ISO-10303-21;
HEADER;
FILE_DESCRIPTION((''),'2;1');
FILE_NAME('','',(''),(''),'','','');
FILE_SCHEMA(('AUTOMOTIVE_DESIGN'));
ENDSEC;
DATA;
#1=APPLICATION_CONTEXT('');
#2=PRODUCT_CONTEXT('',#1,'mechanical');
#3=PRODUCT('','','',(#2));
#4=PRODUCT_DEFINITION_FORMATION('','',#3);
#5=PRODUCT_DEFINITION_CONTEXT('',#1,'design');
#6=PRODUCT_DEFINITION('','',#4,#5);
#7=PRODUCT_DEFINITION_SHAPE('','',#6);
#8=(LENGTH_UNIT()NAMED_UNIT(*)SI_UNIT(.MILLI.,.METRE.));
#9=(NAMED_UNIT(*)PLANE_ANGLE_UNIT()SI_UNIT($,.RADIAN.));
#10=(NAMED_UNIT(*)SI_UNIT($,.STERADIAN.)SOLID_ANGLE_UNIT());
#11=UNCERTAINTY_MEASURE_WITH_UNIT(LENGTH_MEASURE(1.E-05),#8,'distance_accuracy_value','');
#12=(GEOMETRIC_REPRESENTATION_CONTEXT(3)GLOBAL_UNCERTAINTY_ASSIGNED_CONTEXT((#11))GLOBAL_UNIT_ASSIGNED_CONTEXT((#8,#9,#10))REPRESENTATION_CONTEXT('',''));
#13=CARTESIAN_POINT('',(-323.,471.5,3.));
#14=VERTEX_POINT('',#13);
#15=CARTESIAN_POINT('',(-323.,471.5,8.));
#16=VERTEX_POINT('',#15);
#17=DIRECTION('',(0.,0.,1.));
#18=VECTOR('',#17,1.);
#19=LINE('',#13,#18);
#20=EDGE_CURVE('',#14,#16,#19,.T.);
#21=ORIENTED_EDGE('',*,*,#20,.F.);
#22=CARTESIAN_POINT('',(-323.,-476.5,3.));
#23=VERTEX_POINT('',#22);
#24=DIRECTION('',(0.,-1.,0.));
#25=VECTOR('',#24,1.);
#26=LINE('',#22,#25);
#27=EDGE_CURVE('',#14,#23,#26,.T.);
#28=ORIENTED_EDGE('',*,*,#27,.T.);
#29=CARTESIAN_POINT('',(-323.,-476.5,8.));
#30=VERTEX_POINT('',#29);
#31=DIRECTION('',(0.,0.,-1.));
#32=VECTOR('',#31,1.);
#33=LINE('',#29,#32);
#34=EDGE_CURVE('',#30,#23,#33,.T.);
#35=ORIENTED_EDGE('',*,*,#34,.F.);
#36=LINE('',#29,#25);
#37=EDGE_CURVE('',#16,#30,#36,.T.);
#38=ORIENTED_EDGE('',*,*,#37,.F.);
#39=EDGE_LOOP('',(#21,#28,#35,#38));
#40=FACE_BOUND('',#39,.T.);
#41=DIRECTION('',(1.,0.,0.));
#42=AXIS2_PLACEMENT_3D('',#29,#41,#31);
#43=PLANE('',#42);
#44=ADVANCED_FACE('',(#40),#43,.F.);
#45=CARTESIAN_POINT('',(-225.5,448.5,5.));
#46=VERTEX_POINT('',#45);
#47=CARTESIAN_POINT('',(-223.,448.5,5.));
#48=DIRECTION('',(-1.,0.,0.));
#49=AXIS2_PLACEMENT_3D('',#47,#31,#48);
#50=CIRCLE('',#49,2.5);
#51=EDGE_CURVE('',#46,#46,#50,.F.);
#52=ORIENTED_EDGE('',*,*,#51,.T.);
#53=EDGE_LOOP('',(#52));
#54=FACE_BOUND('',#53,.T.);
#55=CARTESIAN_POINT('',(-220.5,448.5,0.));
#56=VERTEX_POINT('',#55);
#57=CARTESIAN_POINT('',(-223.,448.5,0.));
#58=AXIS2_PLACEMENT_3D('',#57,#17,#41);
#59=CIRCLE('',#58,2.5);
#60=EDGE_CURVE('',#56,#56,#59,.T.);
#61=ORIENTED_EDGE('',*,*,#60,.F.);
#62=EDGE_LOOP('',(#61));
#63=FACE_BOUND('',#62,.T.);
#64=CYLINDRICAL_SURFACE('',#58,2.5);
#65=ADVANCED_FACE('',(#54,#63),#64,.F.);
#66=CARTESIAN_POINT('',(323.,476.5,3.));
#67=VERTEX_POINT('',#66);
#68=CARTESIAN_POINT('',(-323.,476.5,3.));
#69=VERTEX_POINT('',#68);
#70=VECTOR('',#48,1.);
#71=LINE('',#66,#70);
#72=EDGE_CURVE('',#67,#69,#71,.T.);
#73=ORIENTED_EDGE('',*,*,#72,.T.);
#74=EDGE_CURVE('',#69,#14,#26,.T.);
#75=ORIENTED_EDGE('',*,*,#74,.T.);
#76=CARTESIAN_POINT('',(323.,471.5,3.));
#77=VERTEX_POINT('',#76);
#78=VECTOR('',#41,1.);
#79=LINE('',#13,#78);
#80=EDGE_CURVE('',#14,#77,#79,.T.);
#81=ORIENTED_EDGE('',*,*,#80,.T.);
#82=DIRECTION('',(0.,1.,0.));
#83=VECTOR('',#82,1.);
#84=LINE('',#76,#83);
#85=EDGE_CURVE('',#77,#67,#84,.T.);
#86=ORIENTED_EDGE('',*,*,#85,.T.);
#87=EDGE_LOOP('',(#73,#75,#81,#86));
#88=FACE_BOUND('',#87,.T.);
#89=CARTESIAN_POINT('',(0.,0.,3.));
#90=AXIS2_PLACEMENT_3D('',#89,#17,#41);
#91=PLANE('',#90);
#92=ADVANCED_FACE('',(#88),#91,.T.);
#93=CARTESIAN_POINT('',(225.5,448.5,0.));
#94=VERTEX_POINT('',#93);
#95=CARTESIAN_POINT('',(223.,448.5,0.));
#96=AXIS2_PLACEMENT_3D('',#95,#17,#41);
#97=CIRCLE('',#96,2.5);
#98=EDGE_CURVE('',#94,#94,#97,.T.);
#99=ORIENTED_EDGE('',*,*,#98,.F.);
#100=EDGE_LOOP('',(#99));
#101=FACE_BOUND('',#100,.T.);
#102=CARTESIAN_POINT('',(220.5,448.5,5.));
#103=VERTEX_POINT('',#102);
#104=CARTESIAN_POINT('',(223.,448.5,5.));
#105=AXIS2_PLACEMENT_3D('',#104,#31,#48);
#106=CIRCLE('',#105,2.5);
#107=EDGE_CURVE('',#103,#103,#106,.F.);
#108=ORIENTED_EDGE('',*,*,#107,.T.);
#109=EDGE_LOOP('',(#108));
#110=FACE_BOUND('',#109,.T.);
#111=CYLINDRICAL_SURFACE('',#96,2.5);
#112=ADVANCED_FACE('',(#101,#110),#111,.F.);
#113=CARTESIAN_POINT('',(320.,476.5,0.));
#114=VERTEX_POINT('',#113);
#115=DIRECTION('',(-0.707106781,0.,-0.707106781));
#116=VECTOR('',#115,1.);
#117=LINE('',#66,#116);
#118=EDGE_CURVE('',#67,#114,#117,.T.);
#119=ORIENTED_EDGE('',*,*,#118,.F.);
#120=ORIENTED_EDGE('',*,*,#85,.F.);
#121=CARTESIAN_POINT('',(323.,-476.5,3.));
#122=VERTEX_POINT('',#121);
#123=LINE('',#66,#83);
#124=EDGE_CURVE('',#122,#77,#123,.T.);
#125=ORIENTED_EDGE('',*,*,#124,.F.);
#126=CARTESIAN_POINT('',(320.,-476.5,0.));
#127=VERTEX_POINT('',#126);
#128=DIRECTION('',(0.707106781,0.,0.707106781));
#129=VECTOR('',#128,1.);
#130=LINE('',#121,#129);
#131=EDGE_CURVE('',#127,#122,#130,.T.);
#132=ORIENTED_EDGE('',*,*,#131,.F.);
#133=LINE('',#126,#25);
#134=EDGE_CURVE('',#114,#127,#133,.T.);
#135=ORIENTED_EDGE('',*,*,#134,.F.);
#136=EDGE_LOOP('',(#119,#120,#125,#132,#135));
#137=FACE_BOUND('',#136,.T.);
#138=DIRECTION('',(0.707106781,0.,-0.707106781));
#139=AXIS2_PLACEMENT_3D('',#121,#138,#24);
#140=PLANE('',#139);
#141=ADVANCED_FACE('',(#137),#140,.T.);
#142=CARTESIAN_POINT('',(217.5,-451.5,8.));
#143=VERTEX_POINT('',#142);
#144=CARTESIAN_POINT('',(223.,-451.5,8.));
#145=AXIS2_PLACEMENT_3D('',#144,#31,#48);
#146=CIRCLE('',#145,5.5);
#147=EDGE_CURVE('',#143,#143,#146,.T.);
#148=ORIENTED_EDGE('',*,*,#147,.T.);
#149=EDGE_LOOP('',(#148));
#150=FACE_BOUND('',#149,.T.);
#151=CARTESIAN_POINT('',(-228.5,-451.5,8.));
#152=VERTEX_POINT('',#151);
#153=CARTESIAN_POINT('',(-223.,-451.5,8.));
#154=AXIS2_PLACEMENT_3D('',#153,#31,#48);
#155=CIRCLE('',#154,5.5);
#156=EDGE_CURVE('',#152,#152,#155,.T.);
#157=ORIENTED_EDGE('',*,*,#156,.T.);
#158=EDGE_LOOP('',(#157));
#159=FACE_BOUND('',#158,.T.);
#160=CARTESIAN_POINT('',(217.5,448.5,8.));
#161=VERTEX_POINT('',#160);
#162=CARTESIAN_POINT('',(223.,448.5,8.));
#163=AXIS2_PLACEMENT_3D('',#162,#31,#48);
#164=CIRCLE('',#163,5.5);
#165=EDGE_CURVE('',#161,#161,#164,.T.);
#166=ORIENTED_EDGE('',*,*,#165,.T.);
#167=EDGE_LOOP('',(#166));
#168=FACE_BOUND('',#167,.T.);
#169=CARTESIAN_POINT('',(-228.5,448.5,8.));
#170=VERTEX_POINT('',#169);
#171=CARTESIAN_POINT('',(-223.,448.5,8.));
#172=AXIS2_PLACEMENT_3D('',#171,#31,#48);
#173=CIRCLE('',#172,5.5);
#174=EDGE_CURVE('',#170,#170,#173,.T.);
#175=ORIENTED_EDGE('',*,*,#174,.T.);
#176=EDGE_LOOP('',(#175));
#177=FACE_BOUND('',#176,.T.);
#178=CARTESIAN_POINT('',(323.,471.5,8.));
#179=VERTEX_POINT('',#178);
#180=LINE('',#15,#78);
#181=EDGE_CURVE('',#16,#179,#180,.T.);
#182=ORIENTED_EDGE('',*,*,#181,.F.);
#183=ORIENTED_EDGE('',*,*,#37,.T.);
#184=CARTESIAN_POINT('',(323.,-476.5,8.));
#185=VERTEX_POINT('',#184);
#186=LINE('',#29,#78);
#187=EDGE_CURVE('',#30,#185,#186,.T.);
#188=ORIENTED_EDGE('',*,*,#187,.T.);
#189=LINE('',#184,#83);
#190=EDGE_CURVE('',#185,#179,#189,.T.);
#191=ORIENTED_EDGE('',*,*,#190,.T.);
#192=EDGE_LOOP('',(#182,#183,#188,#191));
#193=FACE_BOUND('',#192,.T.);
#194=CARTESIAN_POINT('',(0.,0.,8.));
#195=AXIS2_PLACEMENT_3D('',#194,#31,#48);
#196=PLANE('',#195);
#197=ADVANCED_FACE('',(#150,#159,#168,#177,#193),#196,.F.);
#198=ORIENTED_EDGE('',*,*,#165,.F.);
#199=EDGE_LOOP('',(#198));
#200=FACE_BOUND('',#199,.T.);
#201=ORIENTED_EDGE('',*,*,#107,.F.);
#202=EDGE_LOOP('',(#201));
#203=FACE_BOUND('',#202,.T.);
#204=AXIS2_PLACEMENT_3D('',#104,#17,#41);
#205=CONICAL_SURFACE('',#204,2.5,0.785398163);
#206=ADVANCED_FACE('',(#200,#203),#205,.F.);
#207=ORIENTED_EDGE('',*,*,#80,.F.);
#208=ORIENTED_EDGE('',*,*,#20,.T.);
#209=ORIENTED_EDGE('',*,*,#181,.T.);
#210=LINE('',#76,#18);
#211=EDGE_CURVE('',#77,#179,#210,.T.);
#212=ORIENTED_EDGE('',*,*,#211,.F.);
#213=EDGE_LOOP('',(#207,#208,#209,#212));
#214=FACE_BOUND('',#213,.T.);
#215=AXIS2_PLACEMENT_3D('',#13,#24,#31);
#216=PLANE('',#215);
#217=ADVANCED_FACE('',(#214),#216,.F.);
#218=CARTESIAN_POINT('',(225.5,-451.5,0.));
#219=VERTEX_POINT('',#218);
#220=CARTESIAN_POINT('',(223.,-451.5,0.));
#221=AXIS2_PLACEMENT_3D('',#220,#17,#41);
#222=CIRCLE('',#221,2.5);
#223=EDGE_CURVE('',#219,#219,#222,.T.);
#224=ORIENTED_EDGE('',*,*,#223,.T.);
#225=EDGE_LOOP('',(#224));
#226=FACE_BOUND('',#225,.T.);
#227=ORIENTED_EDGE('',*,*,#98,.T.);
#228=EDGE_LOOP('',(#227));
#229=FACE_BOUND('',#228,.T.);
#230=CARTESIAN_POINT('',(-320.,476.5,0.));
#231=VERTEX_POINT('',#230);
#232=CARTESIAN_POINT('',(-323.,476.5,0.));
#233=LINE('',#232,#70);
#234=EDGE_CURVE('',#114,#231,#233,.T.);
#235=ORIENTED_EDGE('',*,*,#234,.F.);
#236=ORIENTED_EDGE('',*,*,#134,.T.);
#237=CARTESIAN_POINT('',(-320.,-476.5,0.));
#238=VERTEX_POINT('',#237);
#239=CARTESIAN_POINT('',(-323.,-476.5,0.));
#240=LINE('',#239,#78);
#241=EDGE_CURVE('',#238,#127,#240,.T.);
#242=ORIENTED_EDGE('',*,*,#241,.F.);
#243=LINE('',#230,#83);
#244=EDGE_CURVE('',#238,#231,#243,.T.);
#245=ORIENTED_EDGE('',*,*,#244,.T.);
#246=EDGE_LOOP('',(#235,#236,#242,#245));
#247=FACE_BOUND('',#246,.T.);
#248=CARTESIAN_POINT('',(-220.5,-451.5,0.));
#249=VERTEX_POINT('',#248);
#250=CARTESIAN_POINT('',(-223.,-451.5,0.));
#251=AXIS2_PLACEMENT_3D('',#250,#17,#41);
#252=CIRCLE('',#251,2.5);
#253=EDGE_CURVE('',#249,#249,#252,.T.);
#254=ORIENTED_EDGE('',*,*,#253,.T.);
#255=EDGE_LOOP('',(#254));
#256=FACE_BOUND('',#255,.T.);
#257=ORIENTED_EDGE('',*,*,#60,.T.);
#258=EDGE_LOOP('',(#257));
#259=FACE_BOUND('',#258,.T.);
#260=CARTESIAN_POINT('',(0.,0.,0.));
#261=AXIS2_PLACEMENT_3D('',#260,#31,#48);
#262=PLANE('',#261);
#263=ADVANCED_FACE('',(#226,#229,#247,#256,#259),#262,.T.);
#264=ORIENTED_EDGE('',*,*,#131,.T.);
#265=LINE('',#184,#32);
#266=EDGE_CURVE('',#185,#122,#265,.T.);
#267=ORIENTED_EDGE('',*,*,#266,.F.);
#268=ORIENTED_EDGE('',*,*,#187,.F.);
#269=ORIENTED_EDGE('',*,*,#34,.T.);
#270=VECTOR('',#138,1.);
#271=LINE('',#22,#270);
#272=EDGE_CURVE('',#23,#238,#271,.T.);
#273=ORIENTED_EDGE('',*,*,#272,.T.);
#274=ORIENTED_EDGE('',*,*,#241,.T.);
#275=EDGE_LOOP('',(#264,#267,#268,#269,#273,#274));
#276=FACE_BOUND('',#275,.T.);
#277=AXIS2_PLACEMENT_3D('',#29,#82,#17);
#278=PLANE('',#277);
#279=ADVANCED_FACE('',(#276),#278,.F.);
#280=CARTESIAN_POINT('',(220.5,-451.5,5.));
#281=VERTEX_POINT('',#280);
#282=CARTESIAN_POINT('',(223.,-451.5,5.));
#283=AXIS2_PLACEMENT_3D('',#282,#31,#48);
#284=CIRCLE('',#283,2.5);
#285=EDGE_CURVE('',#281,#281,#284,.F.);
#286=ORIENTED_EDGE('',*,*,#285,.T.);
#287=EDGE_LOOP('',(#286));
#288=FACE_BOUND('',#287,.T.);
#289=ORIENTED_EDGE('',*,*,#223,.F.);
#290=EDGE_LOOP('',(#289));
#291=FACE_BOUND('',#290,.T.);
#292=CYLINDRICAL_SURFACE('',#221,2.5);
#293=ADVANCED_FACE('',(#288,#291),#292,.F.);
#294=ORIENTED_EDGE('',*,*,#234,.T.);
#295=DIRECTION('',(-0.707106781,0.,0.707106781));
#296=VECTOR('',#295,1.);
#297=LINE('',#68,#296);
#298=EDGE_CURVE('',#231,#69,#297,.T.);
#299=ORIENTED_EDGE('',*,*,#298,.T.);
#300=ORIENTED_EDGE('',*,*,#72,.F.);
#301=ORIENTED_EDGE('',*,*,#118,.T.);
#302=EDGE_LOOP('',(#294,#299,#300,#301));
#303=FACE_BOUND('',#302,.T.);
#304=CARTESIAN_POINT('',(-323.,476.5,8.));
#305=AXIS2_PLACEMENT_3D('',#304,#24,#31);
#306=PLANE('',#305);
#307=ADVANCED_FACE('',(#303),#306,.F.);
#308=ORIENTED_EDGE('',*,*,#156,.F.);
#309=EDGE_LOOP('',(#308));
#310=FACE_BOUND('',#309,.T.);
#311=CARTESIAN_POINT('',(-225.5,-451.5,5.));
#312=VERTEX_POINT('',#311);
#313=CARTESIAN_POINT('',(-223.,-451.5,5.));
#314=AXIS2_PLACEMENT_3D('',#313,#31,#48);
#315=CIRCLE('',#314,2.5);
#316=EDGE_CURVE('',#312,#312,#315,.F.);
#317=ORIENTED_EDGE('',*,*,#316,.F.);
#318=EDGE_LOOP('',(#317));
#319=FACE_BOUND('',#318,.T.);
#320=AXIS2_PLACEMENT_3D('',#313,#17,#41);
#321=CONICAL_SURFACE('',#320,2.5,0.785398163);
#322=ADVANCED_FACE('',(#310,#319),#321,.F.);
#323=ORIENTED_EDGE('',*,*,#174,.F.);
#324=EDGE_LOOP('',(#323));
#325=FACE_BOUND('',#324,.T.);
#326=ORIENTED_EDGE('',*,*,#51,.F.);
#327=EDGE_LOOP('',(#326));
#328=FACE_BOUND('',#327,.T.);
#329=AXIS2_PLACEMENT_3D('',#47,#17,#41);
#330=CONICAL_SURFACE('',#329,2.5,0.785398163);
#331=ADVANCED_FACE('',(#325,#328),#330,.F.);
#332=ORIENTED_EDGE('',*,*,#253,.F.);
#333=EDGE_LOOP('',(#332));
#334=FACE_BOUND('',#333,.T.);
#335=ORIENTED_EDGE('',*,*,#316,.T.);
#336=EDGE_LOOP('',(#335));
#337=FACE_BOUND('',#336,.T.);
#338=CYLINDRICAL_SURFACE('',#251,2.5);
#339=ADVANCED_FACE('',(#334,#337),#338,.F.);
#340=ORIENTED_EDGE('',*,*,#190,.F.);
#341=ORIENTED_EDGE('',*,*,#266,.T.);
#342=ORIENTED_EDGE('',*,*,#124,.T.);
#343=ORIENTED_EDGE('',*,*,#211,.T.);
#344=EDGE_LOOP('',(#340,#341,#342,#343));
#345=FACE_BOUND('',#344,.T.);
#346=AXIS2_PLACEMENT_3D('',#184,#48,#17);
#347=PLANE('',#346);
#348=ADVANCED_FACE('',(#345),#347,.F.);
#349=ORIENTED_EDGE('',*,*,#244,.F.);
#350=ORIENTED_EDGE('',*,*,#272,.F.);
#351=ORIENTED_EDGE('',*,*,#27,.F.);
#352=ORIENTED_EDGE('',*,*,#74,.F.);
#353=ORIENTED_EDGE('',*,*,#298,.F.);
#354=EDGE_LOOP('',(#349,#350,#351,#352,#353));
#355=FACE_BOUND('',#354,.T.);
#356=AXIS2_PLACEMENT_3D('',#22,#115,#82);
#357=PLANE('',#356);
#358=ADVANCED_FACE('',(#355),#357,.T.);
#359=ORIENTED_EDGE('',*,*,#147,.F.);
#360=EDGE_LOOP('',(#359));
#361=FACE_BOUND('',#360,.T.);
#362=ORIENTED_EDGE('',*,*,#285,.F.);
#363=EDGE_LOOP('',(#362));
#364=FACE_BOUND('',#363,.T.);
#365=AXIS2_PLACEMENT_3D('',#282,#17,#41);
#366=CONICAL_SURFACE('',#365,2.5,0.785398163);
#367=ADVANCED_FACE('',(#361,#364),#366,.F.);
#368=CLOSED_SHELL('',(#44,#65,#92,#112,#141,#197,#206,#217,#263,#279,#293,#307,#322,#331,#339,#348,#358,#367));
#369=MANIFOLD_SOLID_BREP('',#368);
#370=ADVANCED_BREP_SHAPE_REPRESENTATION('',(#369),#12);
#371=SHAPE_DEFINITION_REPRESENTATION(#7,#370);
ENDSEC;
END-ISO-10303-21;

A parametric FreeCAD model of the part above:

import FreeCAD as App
import Part
import Sketcher
Q = App.Units.Quantity


def edges_at(feature, points):
    """Names of the edges that pass closest to the given points."""
    edges = feature.Shape.Edges
    near = lambda p: min(range(len(edges)), key=lambda i: edges[i].distToShape(Part.Vertex(*p))[0])
    return sorted({f"Edge{near(p) + 1}" for p in points})

doc = App.newDocument("Part")
body = doc.addObject("PartDesign::Body", "Body")

sketch1 = body.newObject("Sketcher::SketchObject", "Sketch")
sketch1.AttachmentSupport = (doc.getObject("XY_Plane"), [""])
sketch1.MapMode = "FlatFace"
sketch1.addGeometry([
    Part.LineSegment(App.Vector(-323, 476, 0), App.Vector(-323, -476, 0)),
    Part.LineSegment(App.Vector(-323, -476, 0), App.Vector(323, -476, 0)),
    Part.LineSegment(App.Vector(323, -476, 0), App.Vector(323, 476, 0)),
    Part.LineSegment(App.Vector(323, 476, 0), App.Vector(-323, 476, 0)),
], False)
sketch1.addConstraint([
    Sketcher.Constraint("Coincident", 0, 2, 1, 1),
    Sketcher.Constraint("Coincident", 1, 2, 2, 1),
    Sketcher.Constraint("Coincident", 2, 2, 3, 1),
    Sketcher.Constraint("Coincident", 3, 2, 0, 1),
    Sketcher.Constraint("Vertical", 0),
    Sketcher.Constraint("Horizontal", 1),
    Sketcher.Constraint("Vertical", 2),
    Sketcher.Constraint("Horizontal", 3),
    Sketcher.Constraint("Symmetric", 0, 2, 2, 2, -1, 1),
    Sketcher.Constraint("DistanceX", 1, 1, 1, 2, Q("646 mm")),
    Sketcher.Constraint("DistanceY", 0, 2, 0, 1, Q("953 mm")),
])
pad1 = body.newObject("PartDesign::Pad", "Pad")
pad1.Profile = sketch1
pad1.Length = 8
doc.recompute()

chamfer = body.newObject("PartDesign::Chamfer", "Chamfer")
chamfer.Base = (pad1, edges_at(pad1, [(-323, 0, 0), (323, 0, 0)]))
chamfer.Size = 3

sketch2 = body.newObject("Sketcher::SketchObject", "Sketch001")
sketch2.AttachmentSupport = (doc.getObject("XY_Plane"), [""])
sketch2.MapMode = "FlatFace"
sketch2.AttachmentOffset = App.Placement(App.Vector(0, 0, 8), App.Rotation())
sketch2.addGeometry([
    Part.Circle(App.Vector(-223, 448.5, 0), App.Vector(0, 0, 1), 2.5),
    Part.Circle(App.Vector(-223, -451.5, 0), App.Vector(0, 0, 1), 2.5),
    Part.Circle(App.Vector(223, -451.5, 0), App.Vector(0, 0, 1), 2.5),
    Part.Circle(App.Vector(223, 448.5, 0), App.Vector(0, 0, 1), 2.5),
], False)
sketch2.addConstraint([
    Sketcher.Constraint("Equal", 0, 1),
    Sketcher.Constraint("Equal", 1, 2),
    Sketcher.Constraint("Equal", 2, 3),
    Sketcher.Constraint("Symmetric", 1, 3, 2, 3, -2),
    Sketcher.Constraint("Symmetric", 0, 3, 3, 3, -2),
    Sketcher.Constraint("Vertical", 0, 3, 1, 3),
    Sketcher.Constraint("Diameter", 0, Q("5 mm")),
    Sketcher.Constraint("DistanceX", 0, 3, -1, 1, Q("223 mm")),
    Sketcher.Constraint("DistanceY", 1, 3, 0, 3, Q("900 mm")),
    Sketcher.Constraint("DistanceY", -1, 1, 0, 3, Q("448.5 mm")),
])
pocket1 = body.newObject("PartDesign::Pocket", "Pocket")
pocket1.Profile = sketch2
pocket1.Type = "ThroughAll"
doc.recompute()

chamfer2 = body.newObject("PartDesign::Chamfer", "Chamfer001")
chamfer2.Base = (pocket1, edges_at(pocket1, [
    (-225.5, 448.5, 8),
    (-225.5, -451.5, 8),
    (220.5, -451.5, 8),
    (220.5, 448.5, 8),
]))
chamfer2.Size = 3

sketch3 = body.newObject("Sketcher::SketchObject", "Sketch002")
sketch3.AttachmentSupport = (doc.getObject("XY_Plane"), [""])
sketch3.MapMode = "FlatFace"
sketch3.AttachmentOffset = App.Placement(App.Vector(0, 0, 8), App.Rotation())
sketch3.addGeometry([
    Part.LineSegment(App.Vector(-323, 476, 0), App.Vector(-323, 472, 0)),
    Part.LineSegment(App.Vector(-323, 472, 0), App.Vector(323, 472, 0)),
    Part.LineSegment(App.Vector(323, 472, 0), App.Vector(323, 476, 0)),
    Part.LineSegment(App.Vector(323, 476, 0), App.Vector(-323, 476, 0)),
], False)
sketch3.addConstraint([
    Sketcher.Constraint("Coincident", 0, 2, 1, 1),
    Sketcher.Constraint("Coincident", 1, 2, 2, 1),
    Sketcher.Constraint("Coincident", 2, 2, 3, 1),
    Sketcher.Constraint("Coincident", 3, 2, 0, 1),
    Sketcher.Constraint("Vertical", 0),
    Sketcher.Constraint("Horizontal", 1),
    Sketcher.Constraint("Vertical", 2),
    Sketcher.Constraint("Horizontal", 3),
    Sketcher.Constraint("DistanceX", 1, 1, 1, 2, Q("646 mm")),
    Sketcher.Constraint("DistanceY", 0, 2, 0, 1, Q("5 mm")),
    Sketcher.Constraint("DistanceX", 0, 2, -1, 1, Q("323 mm")),
    Sketcher.Constraint("DistanceY", -1, 1, 0, 2, Q("471.5 mm")),
])
pocket2 = body.newObject("PartDesign::Pocket", "Pocket001")
pocket2.Profile = sketch3
pocket2.Length = 5

doc.recompute()
